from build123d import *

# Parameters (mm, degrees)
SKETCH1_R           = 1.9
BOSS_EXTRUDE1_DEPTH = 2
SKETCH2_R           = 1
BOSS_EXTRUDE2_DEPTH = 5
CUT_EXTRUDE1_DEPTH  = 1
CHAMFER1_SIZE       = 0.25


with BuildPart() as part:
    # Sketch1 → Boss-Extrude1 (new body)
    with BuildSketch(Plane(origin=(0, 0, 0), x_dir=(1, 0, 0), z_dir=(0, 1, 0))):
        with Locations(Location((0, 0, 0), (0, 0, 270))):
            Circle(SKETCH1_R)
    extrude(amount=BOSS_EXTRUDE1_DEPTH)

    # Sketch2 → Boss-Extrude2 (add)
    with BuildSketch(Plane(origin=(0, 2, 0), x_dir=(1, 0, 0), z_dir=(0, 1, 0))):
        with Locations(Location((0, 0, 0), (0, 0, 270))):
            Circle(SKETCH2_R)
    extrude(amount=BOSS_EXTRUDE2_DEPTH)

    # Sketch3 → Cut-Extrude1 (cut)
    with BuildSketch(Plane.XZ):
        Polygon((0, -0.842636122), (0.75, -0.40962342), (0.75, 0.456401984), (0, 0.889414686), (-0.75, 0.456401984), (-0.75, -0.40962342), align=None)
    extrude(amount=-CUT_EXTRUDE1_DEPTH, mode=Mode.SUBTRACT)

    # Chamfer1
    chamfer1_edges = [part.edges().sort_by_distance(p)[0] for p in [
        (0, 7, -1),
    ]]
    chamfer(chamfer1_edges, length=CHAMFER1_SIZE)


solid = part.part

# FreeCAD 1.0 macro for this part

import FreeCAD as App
import Part
import Sketcher
from FreeCAD import Vector
Q = App.Units.Quantity


def edges_at(feature, points):
    """Names of the edges that pass closest to the given points."""
    edges = feature.Shape.Edges
    near = lambda p: min(range(len(edges)), key=lambda i: edges[i].distToShape(Part.Vertex(*p))[0])
    return sorted({f"Edge{near(p) + 1}" for p in points})

doc = App.newDocument("Part")
body = doc.addObject("PartDesign::Body", "Body")

sketch1 = body.newObject("Sketcher::SketchObject", "Sketch")
sketch1.AttachmentSupport = (doc.getObject("XZ_Plane"), [""])
sketch1.MapMode = "FlatFace"
sketch1.addGeometry(Part.Circle(Vector(0, 0, 0), Vector(0, 0, 1), 1.9), False)
sketch1.addConstraint([
    Sketcher.Constraint("Coincident", 0, 3, -1, 1),
    Sketcher.Constraint("Diameter", 0, 3.8),
])
pad1 = body.newObject("PartDesign::Pad", "Pad")
pad1.Profile = sketch1
pad1.Length = 2
pad1.Reversed = True

sketch2 = body.newObject("Sketcher::SketchObject", "Sketch001")
sketch2.AttachmentSupport = (doc.getObject("XZ_Plane"), [""])
sketch2.MapMode = "FlatFace"
sketch2.AttachmentOffset = App.Placement(Vector(0, 0, -2), App.Rotation())
sketch2.addGeometry(Part.Circle(Vector(0, 0, 0), Vector(0, 0, 1), 1), False)
sketch2.addConstraint([
    Sketcher.Constraint("Coincident", 0, 3, -1, 1),
    Sketcher.Constraint("Diameter", 0, 2.0),
])
pad2 = body.newObject("PartDesign::Pad", "Pad001")
pad2.Profile = sketch2
pad2.Length = 5
pad2.Reversed = True

sketch3 = body.newObject("Sketcher::SketchObject", "Sketch002")
sketch3.AttachmentSupport = (doc.getObject("XZ_Plane"), [""])
sketch3.MapMode = "FlatFace"
sketch3.addGeometry([
    Part.LineSegment(Vector(0, -0.842636, 0), Vector(0.75, -0.409623, 0)),
    Part.LineSegment(Vector(0.75, -0.409623, 0), Vector(0.75, 0.456402, 0)),
    Part.LineSegment(Vector(0.75, 0.456402, 0), Vector(0, 0.889415, 0)),
    Part.LineSegment(Vector(0, 0.889415, 0), Vector(-0.75, 0.456402, 0)),
    Part.LineSegment(Vector(-0.75, 0.456402, 0), Vector(-0.75, -0.409623, 0)),
    Part.LineSegment(Vector(-0.75, -0.409623, 0), Vector(0, -0.842636, 0)),
], False)
sketch3.addConstraint([
    Sketcher.Constraint("Coincident", 0, 2, 1, 1),
    Sketcher.Constraint("Coincident", 1, 2, 2, 1),
    Sketcher.Constraint("Coincident", 2, 2, 3, 1),
    Sketcher.Constraint("Coincident", 3, 2, 4, 1),
    Sketcher.Constraint("Coincident", 4, 2, 5, 1),
    Sketcher.Constraint("Coincident", 5, 2, 0, 1),
    Sketcher.Constraint("Vertical", 1),
    Sketcher.Constraint("Vertical", 4),
    Sketcher.Constraint("Symmetric", 1, 2, 3, 2, -2),
    Sketcher.Constraint("PointOnObject", 2, 2, -2),
    Sketcher.Constraint("PointOnObject", 5, 2, -2),
    Sketcher.Constraint("Parallel", 0, 3),
    Sketcher.Constraint("Parallel", 2, 5),
    Sketcher.Constraint("Angle", 0, Q("30 deg")),
    Sketcher.Constraint("DistanceX", 3, 2, 1, 2, 1.5),
    Sketcher.Constraint("DistanceY", -1, 1, 1, 2, 0.456402),
    Sketcher.Constraint("DistanceY", 1, 1, 1, 2, 0.866025),
])
pocket1 = body.newObject("PartDesign::Pocket", "Pocket")
pocket1.Profile = sketch3
pocket1.Length = 1
doc.recompute()

chamfer = body.newObject("PartDesign::Chamfer", "Chamfer")
chamfer.Base = (pocket1, edges_at(pocket1, [(0, 7, -1)]))
chamfer.Size = 0.25

doc.recompute()
